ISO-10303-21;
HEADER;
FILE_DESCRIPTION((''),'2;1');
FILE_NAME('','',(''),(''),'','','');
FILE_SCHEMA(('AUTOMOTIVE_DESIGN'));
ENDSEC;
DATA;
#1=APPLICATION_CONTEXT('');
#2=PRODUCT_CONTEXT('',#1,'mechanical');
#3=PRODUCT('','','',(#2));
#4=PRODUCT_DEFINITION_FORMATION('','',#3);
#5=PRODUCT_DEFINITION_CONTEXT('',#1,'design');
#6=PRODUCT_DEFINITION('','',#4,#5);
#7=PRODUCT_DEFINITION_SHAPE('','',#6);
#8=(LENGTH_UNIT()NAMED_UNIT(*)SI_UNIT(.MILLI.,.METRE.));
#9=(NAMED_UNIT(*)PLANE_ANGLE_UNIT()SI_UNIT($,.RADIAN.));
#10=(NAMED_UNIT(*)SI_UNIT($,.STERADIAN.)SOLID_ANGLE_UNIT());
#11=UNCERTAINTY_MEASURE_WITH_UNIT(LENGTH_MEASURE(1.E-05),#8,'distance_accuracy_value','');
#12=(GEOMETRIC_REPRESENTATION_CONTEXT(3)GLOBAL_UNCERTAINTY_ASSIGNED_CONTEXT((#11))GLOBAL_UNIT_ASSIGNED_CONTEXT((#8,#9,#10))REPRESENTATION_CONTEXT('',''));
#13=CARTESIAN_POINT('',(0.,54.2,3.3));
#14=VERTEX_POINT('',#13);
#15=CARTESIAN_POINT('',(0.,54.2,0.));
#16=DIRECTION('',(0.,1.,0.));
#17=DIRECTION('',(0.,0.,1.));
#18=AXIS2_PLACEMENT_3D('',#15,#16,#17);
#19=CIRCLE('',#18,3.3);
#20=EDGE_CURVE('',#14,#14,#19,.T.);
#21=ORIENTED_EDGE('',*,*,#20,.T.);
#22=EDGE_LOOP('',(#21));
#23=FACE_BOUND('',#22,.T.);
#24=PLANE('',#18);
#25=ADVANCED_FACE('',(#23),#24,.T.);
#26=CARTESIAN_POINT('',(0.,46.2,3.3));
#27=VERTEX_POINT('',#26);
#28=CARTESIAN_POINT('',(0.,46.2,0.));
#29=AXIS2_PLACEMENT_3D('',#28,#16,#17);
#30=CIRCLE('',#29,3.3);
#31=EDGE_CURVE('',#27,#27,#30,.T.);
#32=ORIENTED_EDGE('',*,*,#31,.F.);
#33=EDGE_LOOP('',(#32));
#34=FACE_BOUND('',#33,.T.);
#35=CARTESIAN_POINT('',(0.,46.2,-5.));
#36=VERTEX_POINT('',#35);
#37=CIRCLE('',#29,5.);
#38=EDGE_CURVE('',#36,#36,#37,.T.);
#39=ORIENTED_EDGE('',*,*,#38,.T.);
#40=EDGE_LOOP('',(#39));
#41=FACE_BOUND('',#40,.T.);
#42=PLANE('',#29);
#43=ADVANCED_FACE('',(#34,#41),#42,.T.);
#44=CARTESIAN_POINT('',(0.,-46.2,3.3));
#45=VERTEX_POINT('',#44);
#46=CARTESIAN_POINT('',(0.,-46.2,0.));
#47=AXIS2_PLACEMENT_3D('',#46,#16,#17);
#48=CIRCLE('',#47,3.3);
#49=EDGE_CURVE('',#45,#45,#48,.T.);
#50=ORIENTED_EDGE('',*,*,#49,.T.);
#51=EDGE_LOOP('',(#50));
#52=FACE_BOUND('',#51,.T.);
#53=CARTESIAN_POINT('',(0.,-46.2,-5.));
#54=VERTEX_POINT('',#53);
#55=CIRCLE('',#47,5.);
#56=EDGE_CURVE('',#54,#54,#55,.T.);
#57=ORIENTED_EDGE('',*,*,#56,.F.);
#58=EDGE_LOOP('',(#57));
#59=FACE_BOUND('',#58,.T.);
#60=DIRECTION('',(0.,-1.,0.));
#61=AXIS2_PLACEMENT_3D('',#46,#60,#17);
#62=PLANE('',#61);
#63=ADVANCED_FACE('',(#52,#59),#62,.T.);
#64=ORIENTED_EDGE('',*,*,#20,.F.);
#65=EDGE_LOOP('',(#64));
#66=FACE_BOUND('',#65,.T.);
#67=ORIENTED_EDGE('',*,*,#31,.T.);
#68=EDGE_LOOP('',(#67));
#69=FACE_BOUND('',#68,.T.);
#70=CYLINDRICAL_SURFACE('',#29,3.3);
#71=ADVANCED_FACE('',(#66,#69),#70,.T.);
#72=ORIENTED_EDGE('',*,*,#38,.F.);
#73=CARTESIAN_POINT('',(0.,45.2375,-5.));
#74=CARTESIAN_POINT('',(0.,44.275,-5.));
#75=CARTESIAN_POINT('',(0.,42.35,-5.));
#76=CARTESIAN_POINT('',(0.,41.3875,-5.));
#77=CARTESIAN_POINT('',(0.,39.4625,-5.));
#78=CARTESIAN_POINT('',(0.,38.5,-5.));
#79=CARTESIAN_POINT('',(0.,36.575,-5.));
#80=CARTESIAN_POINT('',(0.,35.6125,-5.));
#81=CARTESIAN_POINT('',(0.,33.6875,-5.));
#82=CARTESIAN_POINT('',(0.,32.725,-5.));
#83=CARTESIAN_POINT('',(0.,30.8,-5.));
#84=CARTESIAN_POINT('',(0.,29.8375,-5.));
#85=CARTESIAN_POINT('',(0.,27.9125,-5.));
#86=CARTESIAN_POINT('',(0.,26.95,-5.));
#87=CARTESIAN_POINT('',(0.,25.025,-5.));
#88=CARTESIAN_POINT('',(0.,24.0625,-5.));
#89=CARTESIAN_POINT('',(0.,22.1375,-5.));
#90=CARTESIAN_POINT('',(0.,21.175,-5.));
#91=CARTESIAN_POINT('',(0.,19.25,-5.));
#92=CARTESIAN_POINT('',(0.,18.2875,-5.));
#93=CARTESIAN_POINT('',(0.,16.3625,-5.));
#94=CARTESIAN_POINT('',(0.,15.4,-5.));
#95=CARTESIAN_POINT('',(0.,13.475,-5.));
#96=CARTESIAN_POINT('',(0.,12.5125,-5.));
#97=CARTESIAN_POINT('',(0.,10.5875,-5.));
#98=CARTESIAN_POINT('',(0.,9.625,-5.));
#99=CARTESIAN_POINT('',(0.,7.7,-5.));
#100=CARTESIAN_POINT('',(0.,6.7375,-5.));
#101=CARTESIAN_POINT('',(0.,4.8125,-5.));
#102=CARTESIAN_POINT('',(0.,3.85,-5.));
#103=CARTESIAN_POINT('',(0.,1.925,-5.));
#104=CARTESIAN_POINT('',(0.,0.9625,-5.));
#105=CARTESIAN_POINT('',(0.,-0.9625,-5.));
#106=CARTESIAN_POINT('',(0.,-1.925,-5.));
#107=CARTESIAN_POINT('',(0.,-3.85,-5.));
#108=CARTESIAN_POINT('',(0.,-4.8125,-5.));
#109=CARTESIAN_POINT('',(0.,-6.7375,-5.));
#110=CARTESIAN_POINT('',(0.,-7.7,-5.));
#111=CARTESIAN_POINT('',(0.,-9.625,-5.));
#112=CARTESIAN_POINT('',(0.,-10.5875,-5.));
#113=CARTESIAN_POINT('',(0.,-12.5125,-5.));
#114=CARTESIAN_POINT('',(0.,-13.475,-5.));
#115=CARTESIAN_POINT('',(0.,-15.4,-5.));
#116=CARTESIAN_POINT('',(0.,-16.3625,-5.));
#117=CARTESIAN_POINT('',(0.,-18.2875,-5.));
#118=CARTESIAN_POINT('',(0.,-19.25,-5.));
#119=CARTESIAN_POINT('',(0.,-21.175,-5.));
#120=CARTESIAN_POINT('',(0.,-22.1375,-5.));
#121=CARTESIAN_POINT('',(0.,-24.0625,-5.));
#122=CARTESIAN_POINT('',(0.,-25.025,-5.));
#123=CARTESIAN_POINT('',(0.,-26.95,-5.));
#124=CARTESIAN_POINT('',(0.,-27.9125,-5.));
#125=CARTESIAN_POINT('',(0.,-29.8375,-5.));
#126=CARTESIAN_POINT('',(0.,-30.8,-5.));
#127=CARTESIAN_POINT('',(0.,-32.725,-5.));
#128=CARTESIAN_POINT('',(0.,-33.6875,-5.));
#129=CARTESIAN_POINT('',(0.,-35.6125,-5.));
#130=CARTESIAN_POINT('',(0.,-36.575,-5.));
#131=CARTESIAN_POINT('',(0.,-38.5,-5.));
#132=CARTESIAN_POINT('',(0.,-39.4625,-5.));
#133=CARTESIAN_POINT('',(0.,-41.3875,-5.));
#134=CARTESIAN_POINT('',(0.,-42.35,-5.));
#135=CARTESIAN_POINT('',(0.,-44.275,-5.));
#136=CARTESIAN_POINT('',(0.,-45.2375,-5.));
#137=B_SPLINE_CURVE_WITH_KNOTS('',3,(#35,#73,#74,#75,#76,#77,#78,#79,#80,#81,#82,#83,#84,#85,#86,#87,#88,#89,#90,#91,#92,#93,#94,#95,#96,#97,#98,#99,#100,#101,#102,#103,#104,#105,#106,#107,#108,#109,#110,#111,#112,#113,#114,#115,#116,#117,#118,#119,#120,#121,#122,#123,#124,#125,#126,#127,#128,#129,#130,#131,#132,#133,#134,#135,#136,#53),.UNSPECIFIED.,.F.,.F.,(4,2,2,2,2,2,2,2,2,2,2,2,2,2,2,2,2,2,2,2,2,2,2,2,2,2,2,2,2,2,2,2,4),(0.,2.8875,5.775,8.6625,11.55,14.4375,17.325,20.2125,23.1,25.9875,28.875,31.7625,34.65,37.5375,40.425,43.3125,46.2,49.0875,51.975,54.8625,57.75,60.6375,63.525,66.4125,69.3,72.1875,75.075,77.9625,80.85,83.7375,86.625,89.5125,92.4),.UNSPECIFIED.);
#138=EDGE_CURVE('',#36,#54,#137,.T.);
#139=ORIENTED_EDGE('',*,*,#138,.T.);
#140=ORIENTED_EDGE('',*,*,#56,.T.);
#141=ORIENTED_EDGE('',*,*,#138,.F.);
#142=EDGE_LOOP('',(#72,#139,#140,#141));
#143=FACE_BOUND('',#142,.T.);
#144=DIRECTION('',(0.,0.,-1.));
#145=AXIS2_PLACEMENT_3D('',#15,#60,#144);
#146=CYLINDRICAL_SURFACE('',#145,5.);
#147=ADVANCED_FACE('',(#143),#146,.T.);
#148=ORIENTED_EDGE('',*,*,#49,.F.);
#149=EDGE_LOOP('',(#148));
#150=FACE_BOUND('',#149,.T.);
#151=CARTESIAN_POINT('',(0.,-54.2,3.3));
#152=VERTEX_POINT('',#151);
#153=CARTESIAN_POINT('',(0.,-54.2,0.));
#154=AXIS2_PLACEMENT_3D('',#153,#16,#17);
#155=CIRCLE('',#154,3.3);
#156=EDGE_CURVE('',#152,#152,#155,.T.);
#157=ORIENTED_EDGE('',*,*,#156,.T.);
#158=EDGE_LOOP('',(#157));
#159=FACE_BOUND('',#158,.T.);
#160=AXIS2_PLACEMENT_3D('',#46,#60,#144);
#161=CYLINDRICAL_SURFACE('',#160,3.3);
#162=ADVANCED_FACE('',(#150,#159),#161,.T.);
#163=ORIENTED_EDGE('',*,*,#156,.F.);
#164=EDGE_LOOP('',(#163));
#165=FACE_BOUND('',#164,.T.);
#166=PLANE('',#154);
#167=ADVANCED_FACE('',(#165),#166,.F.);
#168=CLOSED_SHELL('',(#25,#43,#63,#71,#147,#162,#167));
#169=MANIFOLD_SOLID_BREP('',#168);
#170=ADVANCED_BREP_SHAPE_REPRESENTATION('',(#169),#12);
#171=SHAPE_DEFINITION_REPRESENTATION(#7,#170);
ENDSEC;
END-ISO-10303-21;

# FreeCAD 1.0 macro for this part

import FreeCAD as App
import Part
import Sketcher

V = App.Vector
Q = App.Units.Quantity

doc = App.newDocument("Part")
body = doc.addObject("PartDesign::Body", "Body")

sketch1 = body.newObject("Sketcher::SketchObject", "Sketch")
sketch1.AttachmentSupport = (doc.getObject("XZ_Plane"), [""])
sketch1.MapMode = "FlatFace"
sketch1.addGeometry(Part.Circle(V(0, 0, 0), V(0, 0, 1), 5), False)
sketch1.addConstraint(Sketcher.Constraint("Coincident", 0, 3, -1, 1))
sketch1.addConstraint(Sketcher.Constraint("Diameter", 0, Q("10 mm")))
pad1 = body.newObject("PartDesign::Pad", "Pad")
pad1.Profile = sketch1
pad1.Length = 108.4
pad1.Midplane = True

sketch2 = body.newObject("Sketcher::SketchObject", "Sketch001")
sketch2.AttachmentSupport = (doc.getObject("XZ_Plane"), [""])
sketch2.MapMode = "FlatFace"
sketch2.AttachmentOffset = App.Placement(V(0, 0, -54.2), App.Rotation())
sketch2.addGeometry(Part.Circle(V(0, 0, 0), V(0, 0, 1), 5), False)
sketch2.addGeometry(Part.Circle(V(0, 0, 0), V(0, 0, 1), 3.3), False)
sketch2.addConstraint(Sketcher.Constraint("Coincident", 0, 3, -1, 1))
sketch2.addConstraint(Sketcher.Constraint("Coincident", 1, 3, -1, 1))
sketch2.addConstraint(Sketcher.Constraint("Diameter", 0, Q("10 mm")))
sketch2.addConstraint(Sketcher.Constraint("Diameter", 1, Q("6.6 mm")))
pocket1 = body.newObject("PartDesign::Pocket", "Pocket")
pocket1.Profile = sketch2
pocket1.Length = 8
pocket1.Reversed = True
doc.recompute()

mirrored = body.newObject("PartDesign::Mirrored", "Mirrored")
mirrored.Originals = [pocket1]
mirrored.MirrorPlane = (doc.getObject("XZ_Plane"), [""])
body.Tip = mirrored

doc.recompute()
